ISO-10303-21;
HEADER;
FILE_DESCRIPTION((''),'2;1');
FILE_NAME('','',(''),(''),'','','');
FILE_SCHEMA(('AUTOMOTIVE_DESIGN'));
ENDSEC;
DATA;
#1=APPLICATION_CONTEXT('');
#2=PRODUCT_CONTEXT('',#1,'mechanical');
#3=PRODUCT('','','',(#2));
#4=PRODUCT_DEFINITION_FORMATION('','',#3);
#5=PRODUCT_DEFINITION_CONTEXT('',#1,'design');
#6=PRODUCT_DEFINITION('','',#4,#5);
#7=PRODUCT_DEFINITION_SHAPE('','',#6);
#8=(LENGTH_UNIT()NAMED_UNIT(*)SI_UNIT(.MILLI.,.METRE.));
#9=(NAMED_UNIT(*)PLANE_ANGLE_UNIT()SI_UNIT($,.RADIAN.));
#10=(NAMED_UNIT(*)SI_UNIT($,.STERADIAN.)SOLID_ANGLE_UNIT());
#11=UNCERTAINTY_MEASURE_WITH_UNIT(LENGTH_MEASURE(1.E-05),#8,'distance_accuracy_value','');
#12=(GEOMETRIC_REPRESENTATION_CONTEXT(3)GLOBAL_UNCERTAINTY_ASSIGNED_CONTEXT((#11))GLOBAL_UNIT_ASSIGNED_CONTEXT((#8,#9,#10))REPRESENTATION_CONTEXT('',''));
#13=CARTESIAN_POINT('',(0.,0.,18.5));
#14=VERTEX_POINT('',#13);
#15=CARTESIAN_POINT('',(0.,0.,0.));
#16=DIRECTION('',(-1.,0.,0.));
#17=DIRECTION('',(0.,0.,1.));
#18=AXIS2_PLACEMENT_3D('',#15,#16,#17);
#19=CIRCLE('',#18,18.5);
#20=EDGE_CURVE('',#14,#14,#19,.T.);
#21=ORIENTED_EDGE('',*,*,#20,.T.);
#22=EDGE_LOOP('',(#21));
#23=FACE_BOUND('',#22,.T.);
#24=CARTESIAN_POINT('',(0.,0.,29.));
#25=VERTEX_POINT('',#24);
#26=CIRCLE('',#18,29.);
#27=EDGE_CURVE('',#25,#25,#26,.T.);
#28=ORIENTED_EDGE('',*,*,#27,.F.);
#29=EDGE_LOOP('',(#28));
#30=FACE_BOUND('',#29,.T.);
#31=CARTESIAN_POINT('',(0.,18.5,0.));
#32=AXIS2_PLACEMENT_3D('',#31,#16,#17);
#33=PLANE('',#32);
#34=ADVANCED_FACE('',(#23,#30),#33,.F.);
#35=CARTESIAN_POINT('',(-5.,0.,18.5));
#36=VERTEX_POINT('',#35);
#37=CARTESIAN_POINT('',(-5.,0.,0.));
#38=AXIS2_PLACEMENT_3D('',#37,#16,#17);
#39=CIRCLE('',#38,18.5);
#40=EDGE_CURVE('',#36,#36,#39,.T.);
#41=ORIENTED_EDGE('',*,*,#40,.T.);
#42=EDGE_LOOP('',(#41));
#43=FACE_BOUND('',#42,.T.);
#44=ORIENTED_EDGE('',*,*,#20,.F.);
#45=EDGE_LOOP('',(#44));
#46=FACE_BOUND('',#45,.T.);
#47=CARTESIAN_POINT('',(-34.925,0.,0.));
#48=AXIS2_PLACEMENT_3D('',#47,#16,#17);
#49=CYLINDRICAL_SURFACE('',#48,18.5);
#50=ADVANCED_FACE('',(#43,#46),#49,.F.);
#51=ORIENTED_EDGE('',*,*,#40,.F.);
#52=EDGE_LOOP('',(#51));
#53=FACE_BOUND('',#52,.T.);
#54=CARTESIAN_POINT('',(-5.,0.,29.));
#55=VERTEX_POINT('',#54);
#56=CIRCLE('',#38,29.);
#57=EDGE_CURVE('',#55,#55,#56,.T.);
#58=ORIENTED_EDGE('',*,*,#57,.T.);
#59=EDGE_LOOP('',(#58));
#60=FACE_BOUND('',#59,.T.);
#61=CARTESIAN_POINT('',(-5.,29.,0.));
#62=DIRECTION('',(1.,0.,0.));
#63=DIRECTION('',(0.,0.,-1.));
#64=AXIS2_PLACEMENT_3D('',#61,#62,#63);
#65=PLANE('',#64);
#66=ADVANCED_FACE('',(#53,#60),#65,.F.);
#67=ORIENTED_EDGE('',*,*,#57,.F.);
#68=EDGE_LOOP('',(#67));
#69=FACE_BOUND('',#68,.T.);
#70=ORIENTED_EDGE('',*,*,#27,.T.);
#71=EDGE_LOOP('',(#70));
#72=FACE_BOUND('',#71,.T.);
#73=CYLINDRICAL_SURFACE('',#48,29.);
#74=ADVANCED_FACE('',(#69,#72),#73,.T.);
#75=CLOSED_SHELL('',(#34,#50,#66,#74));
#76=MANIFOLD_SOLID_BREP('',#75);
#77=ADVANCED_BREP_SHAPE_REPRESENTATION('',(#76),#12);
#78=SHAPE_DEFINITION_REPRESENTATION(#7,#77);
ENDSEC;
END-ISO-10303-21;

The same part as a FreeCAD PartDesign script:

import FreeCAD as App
import Part
import Sketcher

V = App.Vector
Q = App.Units.Quantity

doc = App.newDocument("Part")
params = doc.addObject("Spreadsheet::Sheet", "Params")
for row, (alias, value) in enumerate([
    ("sketch1_width", "5 mm"),
    ("sketch1_height", "10.5 mm"),
    ("revolution_angle", "360 deg"),
], start=1):
    params.set(f"A{row}", alias)
    params.set(f"B{row}", "=" + value)
    params.setAlias(f"B{row}", alias)

body = doc.addObject("PartDesign::Body", "Body")

# Sketch on XY plane
sketch1 = body.newObject("Sketcher::SketchObject", "Sketch")
sketch1.AttachmentSupport = (doc.getObject("XY_Plane"), [""])
sketch1.MapMode = "FlatFace"
sketch1.addGeometry([
    Part.LineSegment(V(-5, 29, 0), V(-5, 18, 0)),
    Part.LineSegment(V(-5, 18, 0), V(0, 18, 0)),
    Part.LineSegment(V(0, 18, 0), V(0, 29, 0)),
    Part.LineSegment(V(0, 29, 0), V(-5, 29, 0)),
], False)
sketch1.addConstraint([
    Sketcher.Constraint("Coincident", 0, 2, 1, 1),
    Sketcher.Constraint("Coincident", 1, 2, 2, 1),
    Sketcher.Constraint("Coincident", 2, 2, 3, 1),
    Sketcher.Constraint("Coincident", 3, 2, 0, 1),
    Sketcher.Constraint("Vertical", 0),
    Sketcher.Constraint("Horizontal", 1),
    Sketcher.Constraint("Vertical", 2),
    Sketcher.Constraint("Horizontal", 3),
    Sketcher.Constraint("PointOnObject", 1, 2, -2),
    Sketcher.Constraint("DistanceX", 1, 1, 1, 2, Q("5 mm")),
    Sketcher.Constraint("DistanceY", 0, 2, 0, 1, Q("10.5 mm")),
    Sketcher.Constraint("DistanceY", -1, 1, 2, 2, Q("29 mm")),
])
sketch1.setExpression("Constraints[9]", "Params.sketch1_width")
sketch1.setExpression("Constraints[10]", "Params.sketch1_height")
revolution = body.newObject("PartDesign::Revolution", "Revolution")
revolution.Profile = sketch1
revolution.ReferenceAxis = (sketch1, ["H_Axis"])
revolution.setExpression("Angle", "Params.revolution_angle")

doc.recompute()
